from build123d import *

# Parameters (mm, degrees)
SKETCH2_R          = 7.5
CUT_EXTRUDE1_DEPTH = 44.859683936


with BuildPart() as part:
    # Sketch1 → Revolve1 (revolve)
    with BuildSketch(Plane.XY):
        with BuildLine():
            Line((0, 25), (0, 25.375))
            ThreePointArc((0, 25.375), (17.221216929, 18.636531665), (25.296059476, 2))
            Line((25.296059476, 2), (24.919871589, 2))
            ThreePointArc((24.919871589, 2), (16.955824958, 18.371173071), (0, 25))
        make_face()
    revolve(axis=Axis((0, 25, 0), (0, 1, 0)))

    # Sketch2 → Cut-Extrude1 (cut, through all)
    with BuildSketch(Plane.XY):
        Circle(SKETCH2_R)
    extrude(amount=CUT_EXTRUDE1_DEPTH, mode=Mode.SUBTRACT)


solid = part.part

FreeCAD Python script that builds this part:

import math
import FreeCAD as App
import Part
import Sketcher
from FreeCAD import Vector

doc = App.newDocument("Part")
body = doc.addObject("PartDesign::Body", "Body")

# Sketch on XY plane
sketch1 = doc.addObject("Sketcher::SketchObject", "Sketch")
body.addObject(sketch1)
sketch1.AttachmentSupport = (doc.XY_Plane, [""])
sketch1.MapMode = "FlatFace"
sketch1.addGeometry([
    Part.LineSegment(Vector(0, 25.38, 0), Vector(0, 25, 0)),
    Part.ArcOfCircle(Part.Circle(Vector(0, 0, 0), Vector(0, 0, 1), 25), math.radians(5), math.radians(90)),
    Part.LineSegment(Vector(24.92, 2, 0), Vector(25.3, 2, 0)),
    Part.ArcOfCircle(Part.Circle(Vector(0, 0, 0), Vector(0, 0, 1), 25.38), math.radians(5), math.radians(90)),
], False)
sketch1.addConstraint([
    Sketcher.Constraint("Coincident", 0, 2, 1, 2),
    Sketcher.Constraint("Coincident", 1, 1, 2, 1),
    Sketcher.Constraint("Coincident", 2, 2, 3, 1),
    Sketcher.Constraint("Coincident", 3, 2, 0, 1),
    Sketcher.Constraint("Vertical", 0),
    Sketcher.Constraint("Horizontal", 2),
    Sketcher.Constraint("Coincident", 1, 3, -1, 1),
    Sketcher.Constraint("Coincident", 3, 3, -1, 1),
    Sketcher.Constraint("PointOnObject", 0, 2, -2),
    Sketcher.Constraint("Radius", 1, 25.0),
    Sketcher.Constraint("DistanceY", -1, 1, 1, 1, 2.0),
    Sketcher.Constraint("Radius", 3, 25.375),
])
revolution = doc.addObject("PartDesign::Revolution", "Revolution")
body.addObject(revolution)
revolution.Profile = sketch1
revolution.ReferenceAxis = (sketch1, ["V_Axis"])
revolution.Angle = 360

# Sketch on XY plane
sketch2 = doc.addObject("Sketcher::SketchObject", "Sketch001")
body.addObject(sketch2)
sketch2.AttachmentSupport = (doc.XY_Plane, [""])
sketch2.MapMode = "FlatFace"
sketch2.addGeometry(Part.Circle(Vector(0, 0, 0), Vector(0, 0, 1), 8), False)
sketch2.addConstraint([
    Sketcher.Constraint("Coincident", 0, 3, -1, 1),
    Sketcher.Constraint("Diameter", 0, 15.0),
])
pocket1 = doc.addObject("PartDesign::Pocket", "Pocket")
body.addObject(pocket1)
pocket1.Profile = sketch2
pocket1.Type = "ThroughAll"
pocket1.Reversed = True

doc.recompute()
